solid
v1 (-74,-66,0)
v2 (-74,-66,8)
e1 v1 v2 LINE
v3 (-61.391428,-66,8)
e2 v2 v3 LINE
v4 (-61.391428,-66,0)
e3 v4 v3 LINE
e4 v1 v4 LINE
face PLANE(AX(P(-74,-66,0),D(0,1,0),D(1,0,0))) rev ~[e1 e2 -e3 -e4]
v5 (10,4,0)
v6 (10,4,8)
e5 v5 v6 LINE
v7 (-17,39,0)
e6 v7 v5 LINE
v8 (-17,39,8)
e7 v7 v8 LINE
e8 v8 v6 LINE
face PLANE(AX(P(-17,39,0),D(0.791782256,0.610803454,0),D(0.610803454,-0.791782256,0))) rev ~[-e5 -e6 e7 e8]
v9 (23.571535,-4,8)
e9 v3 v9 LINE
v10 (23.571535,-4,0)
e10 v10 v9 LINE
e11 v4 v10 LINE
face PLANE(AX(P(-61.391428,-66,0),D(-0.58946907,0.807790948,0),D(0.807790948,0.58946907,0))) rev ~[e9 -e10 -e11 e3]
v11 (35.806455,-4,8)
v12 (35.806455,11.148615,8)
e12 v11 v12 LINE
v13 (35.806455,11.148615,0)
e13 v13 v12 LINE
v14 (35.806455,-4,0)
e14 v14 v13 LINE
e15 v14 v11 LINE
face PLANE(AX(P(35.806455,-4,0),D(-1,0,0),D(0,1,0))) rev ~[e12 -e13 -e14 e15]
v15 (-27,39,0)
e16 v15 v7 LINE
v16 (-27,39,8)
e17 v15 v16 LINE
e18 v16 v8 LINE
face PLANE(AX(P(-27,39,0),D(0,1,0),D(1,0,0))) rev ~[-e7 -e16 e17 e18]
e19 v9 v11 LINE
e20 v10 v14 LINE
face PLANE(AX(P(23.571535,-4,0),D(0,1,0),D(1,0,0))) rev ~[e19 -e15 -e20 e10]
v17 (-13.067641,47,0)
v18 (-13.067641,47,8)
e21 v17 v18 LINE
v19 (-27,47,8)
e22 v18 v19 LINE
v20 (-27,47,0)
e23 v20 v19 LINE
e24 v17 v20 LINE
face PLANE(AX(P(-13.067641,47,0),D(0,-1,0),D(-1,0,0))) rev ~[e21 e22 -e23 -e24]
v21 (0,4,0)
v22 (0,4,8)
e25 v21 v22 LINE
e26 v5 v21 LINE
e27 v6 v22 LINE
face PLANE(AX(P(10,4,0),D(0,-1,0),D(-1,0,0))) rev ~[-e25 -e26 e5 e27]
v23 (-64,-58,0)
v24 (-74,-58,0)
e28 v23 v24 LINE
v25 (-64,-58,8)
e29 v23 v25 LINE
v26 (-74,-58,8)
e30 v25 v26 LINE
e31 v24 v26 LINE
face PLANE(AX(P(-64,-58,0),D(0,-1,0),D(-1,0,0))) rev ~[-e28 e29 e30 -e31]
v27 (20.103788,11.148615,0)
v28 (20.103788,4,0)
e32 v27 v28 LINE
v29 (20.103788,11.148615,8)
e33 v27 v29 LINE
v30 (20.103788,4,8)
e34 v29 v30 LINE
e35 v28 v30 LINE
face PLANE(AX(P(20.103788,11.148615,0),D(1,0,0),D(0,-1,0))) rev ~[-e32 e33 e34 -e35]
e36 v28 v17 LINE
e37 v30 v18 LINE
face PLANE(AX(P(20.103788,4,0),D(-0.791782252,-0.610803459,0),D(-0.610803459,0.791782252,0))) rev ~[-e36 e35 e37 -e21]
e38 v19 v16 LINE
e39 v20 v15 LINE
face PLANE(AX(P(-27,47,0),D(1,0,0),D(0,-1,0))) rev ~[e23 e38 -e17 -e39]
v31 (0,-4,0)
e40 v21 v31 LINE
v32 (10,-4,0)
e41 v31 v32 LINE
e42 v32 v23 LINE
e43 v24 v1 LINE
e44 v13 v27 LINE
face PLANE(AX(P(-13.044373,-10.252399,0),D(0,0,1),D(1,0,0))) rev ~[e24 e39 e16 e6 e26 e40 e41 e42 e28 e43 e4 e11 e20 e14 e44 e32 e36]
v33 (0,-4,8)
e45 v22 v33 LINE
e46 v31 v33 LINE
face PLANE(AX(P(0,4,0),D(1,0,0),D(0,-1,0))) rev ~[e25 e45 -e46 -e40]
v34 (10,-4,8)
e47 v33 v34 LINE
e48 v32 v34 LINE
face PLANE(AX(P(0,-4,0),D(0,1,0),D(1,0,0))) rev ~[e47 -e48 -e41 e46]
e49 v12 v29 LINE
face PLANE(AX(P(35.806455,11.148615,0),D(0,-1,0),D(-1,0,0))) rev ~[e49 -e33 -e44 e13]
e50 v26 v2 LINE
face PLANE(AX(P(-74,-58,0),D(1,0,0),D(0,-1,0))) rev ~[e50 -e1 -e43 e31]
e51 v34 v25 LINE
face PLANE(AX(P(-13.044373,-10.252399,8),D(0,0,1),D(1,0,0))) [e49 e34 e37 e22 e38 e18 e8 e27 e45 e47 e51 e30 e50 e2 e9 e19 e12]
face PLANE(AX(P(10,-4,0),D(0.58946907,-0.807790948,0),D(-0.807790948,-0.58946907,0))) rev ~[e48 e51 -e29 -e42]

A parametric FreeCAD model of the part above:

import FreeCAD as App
import Part
import Sketcher

V = App.Vector


def add_polygon(sketch, points):
    """Adds a closed chain of lines whose ends are joined by coincident constraints."""
    first, n = sketch.GeometryCount, len(points)
    for a, b in zip(points, points[1:] + points[:1]):
        sketch.addGeometry(Part.LineSegment(App.Vector(*a, 0), App.Vector(*b, 0)), False)
    for i in range(n):
        sketch.addConstraint(Sketcher.Constraint("Coincident", first + i, 2, first + (i + 1) % n, 1))

doc = App.newDocument("Part")
body = doc.addObject("PartDesign::Body", "Body")

# Sketch on XY plane
sketch1 = doc.addObject("Sketcher::SketchObject", "Sketch")
body.addObject(sketch1)
sketch1.AttachmentSupport = (doc.XY_Plane, [""])
sketch1.MapMode = "FlatFace"
add_polygon(sketch1, [(10, 4), (0, 4), (0, -4), (10, -4), (-64, -58), (-74, -58), (-74, -66), (-61, -66), (24, -4), (36, -4), (36, 11), (20, 11), (20, 4), (-13, 47), (-27, 47), (-27, 39), (-17, 39)])  # lines 0-16
sketch1.addConstraint([
    Sketcher.Constraint("Horizontal", 0),
    Sketcher.Constraint("Vertical", 1),
    Sketcher.Constraint("Horizontal", 2),
    Sketcher.Constraint("Horizontal", 4),
    Sketcher.Constraint("Vertical", 5),
    Sketcher.Constraint("Horizontal", 6),
    Sketcher.Constraint("Horizontal", 8),
    Sketcher.Constraint("Vertical", 9),
    Sketcher.Constraint("Horizontal", 10),
    Sketcher.Constraint("Vertical", 11),
    Sketcher.Constraint("Horizontal", 13),
    Sketcher.Constraint("Vertical", 14),
    Sketcher.Constraint("Horizontal", 15),
    Sketcher.Constraint("Symmetric", 0, 2, 1, 2, -1, 1),
    Sketcher.Constraint("Parallel", 3, 7),
    Sketcher.Constraint("Parallel", 12, 16),
    Sketcher.Constraint("Horizontal", 2, 2, 7, 2),
    Sketcher.Constraint("Horizontal", 0, 2, 11, 2),
    Sketcher.Constraint("Vertical", 2, 2, 16, 2),
    Sketcher.Constraint("Equal", 2, 4),
    Sketcher.Constraint("Equal", 4, 15),
    Sketcher.Constraint("Equal", 1, 5),
    Sketcher.Constraint("Equal", 5, 14),
    Sketcher.Constraint("DistanceX", 0, 2, 0, 1, 10.0),
    Sketcher.Constraint("DistanceY", 1, 2, 1, 1, 8.0),
    Sketcher.Constraint("DistanceX", 3, 2, -1, 1, 64.0),
    Sketcher.Constraint("DistanceY", 3, 2, -1, 1, 58.0),
    Sketcher.Constraint("DistanceY", -1, 1, 12, 2, 47.0),
    Sketcher.Constraint("DistanceX", 13, 2, -1, 1, 27.0),
    Sketcher.Constraint("DistanceX", 8, 1, 8, 2, 12.23492),
    Sketcher.Constraint("DistanceX", 13, 2, 13, 1, 13.932359),
    Sketcher.Constraint("DistanceX", 6, 1, 6, 2, 12.608572),
    Sketcher.Constraint("DistanceY", 9, 1, 9, 2, 15.148615),
])
pad1 = doc.addObject("PartDesign::Pad", "Pad")
body.addObject(pad1)
pad1.Profile = sketch1
pad1.Length = 8

doc.recompute()
